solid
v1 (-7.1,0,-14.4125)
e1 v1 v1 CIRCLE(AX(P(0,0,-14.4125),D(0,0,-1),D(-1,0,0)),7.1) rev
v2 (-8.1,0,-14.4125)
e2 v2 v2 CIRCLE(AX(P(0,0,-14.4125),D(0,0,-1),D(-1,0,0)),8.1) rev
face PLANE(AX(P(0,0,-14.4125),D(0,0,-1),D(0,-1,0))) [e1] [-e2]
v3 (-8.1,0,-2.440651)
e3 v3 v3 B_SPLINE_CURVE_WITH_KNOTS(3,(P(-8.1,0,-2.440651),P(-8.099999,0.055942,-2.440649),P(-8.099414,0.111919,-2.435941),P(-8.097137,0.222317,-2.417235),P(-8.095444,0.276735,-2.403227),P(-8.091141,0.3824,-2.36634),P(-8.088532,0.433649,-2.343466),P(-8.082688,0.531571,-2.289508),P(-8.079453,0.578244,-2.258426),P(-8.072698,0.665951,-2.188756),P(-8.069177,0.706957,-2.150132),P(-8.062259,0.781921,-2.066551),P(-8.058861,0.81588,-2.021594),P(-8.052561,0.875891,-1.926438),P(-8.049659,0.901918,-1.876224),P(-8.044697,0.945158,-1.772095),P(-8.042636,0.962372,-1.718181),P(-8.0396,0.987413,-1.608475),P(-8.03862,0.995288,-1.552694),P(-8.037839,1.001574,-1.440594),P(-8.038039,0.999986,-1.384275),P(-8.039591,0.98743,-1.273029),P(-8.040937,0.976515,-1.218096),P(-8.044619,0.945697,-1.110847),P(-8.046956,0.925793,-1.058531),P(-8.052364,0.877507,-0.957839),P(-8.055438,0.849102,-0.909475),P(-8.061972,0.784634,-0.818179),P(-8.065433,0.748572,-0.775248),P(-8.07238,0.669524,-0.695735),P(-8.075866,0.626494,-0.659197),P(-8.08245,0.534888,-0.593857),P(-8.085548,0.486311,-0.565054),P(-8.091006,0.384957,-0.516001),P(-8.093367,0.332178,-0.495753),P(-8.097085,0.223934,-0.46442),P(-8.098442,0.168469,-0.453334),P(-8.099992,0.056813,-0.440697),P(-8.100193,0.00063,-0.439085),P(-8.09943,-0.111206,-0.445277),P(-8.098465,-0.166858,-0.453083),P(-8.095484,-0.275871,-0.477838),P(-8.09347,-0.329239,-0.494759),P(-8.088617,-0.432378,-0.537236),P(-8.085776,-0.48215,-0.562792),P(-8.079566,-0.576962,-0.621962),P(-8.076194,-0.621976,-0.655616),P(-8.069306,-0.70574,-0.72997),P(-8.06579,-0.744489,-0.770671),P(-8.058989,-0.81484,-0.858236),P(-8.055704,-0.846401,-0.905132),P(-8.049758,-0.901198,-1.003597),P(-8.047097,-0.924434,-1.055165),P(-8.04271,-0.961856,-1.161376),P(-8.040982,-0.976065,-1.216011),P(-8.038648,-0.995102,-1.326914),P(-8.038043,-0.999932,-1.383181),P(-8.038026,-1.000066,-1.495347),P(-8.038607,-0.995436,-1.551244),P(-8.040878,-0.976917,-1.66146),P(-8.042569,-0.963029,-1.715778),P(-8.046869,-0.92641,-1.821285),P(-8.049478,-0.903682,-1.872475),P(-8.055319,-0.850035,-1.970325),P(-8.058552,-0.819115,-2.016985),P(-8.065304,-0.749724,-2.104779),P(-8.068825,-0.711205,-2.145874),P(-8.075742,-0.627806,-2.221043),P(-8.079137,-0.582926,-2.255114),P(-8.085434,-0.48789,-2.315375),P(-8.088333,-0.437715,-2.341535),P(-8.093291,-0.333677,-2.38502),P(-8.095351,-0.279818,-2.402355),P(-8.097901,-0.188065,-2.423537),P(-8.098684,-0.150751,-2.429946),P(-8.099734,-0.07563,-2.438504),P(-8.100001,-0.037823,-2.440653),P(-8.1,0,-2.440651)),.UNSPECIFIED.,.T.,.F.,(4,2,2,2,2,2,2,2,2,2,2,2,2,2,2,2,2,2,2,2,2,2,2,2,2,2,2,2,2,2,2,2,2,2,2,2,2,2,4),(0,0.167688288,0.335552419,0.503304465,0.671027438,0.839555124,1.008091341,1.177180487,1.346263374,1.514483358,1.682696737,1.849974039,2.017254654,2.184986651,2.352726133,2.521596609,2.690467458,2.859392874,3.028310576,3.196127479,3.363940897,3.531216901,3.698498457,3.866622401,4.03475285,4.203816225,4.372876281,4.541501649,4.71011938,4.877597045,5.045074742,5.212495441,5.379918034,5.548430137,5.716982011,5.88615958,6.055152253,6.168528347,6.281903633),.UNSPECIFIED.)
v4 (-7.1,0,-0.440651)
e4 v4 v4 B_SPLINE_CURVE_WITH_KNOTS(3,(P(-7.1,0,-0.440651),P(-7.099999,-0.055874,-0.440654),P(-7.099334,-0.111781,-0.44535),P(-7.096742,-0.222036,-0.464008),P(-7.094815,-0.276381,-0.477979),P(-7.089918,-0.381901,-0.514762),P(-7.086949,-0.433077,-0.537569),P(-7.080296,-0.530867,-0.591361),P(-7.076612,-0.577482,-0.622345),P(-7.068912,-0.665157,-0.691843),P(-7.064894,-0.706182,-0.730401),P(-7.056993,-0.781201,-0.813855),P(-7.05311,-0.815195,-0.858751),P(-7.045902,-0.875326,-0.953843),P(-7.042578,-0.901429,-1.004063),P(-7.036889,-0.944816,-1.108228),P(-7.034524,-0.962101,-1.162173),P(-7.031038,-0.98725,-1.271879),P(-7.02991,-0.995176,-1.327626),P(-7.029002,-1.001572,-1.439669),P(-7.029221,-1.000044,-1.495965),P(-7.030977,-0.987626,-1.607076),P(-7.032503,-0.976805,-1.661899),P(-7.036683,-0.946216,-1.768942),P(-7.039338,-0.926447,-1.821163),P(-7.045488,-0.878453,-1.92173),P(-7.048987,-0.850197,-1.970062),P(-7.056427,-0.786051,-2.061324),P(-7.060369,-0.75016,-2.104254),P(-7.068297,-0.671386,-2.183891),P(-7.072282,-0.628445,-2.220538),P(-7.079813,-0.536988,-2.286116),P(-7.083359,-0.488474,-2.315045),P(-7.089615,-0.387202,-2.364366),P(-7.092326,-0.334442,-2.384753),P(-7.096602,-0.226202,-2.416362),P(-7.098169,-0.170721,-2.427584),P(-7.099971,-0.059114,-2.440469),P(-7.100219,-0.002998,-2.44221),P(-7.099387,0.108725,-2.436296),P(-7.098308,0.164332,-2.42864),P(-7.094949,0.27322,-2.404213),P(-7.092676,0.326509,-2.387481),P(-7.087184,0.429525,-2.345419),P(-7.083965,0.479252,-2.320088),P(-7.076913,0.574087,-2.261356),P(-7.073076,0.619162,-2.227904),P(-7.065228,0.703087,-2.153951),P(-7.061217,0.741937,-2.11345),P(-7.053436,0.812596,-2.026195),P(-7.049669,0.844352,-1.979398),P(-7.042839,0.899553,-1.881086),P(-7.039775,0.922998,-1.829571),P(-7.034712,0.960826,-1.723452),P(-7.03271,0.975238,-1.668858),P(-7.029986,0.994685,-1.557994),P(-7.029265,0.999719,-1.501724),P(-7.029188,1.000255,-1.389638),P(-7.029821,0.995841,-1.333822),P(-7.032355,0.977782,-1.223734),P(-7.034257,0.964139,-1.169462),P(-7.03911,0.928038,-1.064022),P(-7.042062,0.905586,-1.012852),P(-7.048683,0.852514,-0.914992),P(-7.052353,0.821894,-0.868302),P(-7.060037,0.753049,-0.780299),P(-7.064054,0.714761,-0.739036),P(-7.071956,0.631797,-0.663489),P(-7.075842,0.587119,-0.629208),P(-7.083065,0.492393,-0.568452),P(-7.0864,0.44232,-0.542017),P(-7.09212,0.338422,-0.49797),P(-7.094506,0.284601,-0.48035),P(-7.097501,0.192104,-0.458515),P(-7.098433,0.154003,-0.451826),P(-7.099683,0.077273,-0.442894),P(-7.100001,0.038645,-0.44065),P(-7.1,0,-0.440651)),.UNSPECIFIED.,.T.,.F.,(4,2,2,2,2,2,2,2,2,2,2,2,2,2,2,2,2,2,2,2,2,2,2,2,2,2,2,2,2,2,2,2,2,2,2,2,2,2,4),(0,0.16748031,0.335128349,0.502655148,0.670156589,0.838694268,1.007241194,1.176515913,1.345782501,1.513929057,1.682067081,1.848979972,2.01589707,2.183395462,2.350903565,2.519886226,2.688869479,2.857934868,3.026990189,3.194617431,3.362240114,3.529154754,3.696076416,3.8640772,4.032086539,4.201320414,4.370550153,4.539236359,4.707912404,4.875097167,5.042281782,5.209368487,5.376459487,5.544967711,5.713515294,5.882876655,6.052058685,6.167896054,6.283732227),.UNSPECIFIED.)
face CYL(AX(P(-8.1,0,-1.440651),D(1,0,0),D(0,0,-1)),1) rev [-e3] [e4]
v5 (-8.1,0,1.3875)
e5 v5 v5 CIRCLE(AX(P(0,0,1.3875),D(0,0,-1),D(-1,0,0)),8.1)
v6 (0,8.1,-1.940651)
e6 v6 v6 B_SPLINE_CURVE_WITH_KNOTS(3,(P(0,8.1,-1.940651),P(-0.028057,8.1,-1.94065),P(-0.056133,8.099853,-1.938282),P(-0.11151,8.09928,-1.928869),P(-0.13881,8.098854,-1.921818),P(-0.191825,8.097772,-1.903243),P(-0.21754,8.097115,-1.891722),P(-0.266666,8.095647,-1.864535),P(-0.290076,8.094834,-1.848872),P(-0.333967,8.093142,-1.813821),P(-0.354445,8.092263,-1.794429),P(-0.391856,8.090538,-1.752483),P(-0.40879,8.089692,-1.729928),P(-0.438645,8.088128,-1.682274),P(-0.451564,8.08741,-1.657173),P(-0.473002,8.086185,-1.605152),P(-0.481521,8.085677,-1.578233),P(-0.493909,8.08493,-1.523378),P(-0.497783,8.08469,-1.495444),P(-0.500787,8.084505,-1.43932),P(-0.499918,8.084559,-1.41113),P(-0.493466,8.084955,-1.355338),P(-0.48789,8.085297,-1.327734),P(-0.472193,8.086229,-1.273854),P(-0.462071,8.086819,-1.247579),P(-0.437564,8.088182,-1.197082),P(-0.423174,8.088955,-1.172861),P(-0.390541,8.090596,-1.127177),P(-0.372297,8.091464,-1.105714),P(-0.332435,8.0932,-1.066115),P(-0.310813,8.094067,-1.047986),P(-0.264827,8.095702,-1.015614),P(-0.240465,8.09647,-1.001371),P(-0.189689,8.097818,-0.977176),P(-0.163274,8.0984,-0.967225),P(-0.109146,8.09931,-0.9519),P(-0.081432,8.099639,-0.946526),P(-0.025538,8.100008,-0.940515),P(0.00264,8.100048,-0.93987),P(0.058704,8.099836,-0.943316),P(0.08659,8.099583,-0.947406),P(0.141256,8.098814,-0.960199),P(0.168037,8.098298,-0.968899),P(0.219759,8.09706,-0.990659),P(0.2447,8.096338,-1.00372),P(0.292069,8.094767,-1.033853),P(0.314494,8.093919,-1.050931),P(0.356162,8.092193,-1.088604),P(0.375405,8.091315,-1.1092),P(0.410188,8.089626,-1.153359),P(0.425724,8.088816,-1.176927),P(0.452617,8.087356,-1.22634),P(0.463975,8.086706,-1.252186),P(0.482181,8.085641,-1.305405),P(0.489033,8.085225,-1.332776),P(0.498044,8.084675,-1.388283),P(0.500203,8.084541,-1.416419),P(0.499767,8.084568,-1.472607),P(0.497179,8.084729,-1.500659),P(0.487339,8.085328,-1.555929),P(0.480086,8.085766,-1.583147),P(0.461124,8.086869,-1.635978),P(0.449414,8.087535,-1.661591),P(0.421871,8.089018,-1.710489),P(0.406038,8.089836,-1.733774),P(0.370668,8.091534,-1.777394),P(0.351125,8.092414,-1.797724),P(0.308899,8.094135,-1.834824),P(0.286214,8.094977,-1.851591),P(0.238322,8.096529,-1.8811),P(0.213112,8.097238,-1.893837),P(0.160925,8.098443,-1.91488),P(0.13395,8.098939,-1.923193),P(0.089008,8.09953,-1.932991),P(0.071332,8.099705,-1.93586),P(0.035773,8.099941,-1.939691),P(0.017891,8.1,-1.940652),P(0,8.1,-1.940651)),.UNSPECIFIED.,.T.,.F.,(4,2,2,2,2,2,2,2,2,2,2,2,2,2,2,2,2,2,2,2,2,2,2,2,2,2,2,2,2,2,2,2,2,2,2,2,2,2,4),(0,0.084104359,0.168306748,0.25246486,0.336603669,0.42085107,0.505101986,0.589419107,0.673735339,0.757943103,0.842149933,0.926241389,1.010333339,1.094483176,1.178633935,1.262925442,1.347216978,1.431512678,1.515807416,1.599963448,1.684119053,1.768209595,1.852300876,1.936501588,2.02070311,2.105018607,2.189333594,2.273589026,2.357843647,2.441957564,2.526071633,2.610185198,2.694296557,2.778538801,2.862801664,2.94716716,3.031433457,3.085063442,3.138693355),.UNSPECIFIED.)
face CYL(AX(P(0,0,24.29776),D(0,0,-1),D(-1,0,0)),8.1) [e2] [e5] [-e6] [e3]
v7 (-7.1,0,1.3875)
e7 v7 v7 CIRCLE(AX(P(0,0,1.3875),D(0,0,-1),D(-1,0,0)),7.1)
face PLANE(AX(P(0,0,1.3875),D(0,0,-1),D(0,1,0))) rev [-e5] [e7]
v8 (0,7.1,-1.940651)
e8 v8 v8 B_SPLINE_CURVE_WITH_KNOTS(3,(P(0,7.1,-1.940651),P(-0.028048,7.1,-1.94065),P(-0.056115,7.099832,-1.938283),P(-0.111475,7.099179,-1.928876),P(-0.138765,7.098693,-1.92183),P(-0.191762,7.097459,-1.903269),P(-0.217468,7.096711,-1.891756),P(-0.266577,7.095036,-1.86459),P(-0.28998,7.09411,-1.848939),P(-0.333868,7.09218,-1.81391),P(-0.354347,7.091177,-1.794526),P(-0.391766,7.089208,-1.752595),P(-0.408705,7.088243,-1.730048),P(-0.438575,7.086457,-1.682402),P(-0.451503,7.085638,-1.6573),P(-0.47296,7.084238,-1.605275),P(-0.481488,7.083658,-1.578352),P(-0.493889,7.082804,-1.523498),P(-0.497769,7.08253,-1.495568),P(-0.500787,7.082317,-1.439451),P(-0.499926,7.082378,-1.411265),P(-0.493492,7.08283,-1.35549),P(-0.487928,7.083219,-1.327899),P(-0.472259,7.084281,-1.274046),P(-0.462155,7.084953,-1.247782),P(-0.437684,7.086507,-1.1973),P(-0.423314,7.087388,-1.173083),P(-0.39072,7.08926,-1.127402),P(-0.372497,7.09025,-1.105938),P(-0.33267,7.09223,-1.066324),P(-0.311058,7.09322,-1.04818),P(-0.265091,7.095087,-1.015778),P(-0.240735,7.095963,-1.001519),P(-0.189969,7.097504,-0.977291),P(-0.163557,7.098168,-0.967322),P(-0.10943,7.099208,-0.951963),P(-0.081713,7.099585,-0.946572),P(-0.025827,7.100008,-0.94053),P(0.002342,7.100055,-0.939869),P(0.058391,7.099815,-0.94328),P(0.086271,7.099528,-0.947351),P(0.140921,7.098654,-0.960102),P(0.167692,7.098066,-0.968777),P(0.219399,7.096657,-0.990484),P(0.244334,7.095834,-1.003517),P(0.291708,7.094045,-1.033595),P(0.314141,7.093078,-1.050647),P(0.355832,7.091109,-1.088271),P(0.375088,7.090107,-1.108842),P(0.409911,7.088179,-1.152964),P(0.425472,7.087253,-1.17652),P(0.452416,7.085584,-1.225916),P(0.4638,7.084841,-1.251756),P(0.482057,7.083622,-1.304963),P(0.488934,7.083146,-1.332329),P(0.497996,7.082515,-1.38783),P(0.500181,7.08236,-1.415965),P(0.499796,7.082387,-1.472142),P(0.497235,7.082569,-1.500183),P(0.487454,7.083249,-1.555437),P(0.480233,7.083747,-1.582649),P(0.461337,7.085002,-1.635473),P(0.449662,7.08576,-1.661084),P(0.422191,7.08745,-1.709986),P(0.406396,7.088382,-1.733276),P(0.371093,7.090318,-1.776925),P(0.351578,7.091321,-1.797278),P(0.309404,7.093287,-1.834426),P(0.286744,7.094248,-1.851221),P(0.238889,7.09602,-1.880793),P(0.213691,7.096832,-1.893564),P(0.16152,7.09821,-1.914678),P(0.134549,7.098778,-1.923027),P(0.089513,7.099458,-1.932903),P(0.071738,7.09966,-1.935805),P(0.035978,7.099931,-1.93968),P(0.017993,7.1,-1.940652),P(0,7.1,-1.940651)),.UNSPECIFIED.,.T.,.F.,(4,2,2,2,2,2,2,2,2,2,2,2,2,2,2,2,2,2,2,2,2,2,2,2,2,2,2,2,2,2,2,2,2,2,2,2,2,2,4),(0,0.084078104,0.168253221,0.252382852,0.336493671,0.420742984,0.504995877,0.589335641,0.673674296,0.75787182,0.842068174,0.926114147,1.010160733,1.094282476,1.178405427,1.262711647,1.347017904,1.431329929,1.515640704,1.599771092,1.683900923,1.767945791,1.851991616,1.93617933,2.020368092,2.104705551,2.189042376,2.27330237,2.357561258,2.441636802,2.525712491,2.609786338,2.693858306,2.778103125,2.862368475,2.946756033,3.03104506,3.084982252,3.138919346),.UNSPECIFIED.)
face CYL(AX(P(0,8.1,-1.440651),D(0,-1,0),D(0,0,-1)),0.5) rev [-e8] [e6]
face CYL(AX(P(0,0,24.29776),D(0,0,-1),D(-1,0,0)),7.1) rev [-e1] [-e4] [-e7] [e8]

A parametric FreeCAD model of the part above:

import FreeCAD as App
import Part
import Sketcher
from FreeCAD import Vector
Q = App.Units.Quantity

doc = App.newDocument("Part")
body = doc.addObject("PartDesign::Body", "Body")

# Sketch on XY plane
sketch1 = doc.addObject("Sketcher::SketchObject", "Sketch")
body.addObject(sketch1)
sketch1.AttachmentSupport = (doc.XY_Plane, [""])
sketch1.MapMode = "FlatFace"
sketch1.addGeometry([
    Part.Circle(Vector(0, 0, 0), Vector(0, 0, 1), 8),
    Part.Circle(Vector(0, 0, 0), Vector(0, 0, 1), 7),
], False)
sketch1.addConstraint([
    Sketcher.Constraint("Coincident", 0, 3, -1, 1),
    Sketcher.Constraint("Coincident", 1, 3, -1, 1),
    Sketcher.Constraint("Diameter", 0, Q("16.2 mm")),
    Sketcher.Constraint("Diameter", 1, Q("14.2 mm")),
])
pad1 = doc.addObject("PartDesign::Pad", "Pad")
body.addObject(pad1)
pad1.Profile = sketch1
pad1.Type = "TwoLengths"
pad1.Length = 1.3875
pad1.Length2 = 14.4125

# Sketch on YZ plane
sketch2 = doc.addObject("Sketcher::SketchObject", "Sketch001")
body.addObject(sketch2)
sketch2.AttachmentSupport = (doc.YZ_Plane, [""])
sketch2.MapMode = "FlatFace"
sketch2.addGeometry(Part.Circle(Vector(0, -1.4, 0), Vector(0, 0, 1), 1), False)
sketch2.addConstraint([
    Sketcher.Constraint("PointOnObject", 0, 3, -2),
    Sketcher.Constraint("Diameter", 0, Q("2 mm")),
    Sketcher.Constraint("DistanceY", 0, 3, -1, 1, Q("1.440651 mm")),
])
pocket1 = doc.addObject("PartDesign::Pocket", "Pocket")
body.addObject(pocket1)
pocket1.Profile = sketch2
pocket1.Type = "ThroughAll"

# Sketch on XZ plane
sketch3 = doc.addObject("Sketcher::SketchObject", "Sketch002")
body.addObject(sketch3)
sketch3.AttachmentSupport = (doc.XZ_Plane, [""])
sketch3.MapMode = "FlatFace"
sketch3.addGeometry(Part.Circle(Vector(0, -1.4, 0), Vector(0, 0, 1), 0.5), False)
sketch3.addConstraint([
    Sketcher.Constraint("PointOnObject", 0, 3, -2),
    Sketcher.Constraint("Diameter", 0, Q("1 mm")),
    Sketcher.Constraint("DistanceY", 0, 3, -1, 1, Q("1.440651 mm")),
])
pocket2 = doc.addObject("PartDesign::Pocket", "Pocket001")
body.addObject(pocket2)
pocket2.Profile = sketch3
pocket2.Type = "ThroughAll"

doc.recompute()
